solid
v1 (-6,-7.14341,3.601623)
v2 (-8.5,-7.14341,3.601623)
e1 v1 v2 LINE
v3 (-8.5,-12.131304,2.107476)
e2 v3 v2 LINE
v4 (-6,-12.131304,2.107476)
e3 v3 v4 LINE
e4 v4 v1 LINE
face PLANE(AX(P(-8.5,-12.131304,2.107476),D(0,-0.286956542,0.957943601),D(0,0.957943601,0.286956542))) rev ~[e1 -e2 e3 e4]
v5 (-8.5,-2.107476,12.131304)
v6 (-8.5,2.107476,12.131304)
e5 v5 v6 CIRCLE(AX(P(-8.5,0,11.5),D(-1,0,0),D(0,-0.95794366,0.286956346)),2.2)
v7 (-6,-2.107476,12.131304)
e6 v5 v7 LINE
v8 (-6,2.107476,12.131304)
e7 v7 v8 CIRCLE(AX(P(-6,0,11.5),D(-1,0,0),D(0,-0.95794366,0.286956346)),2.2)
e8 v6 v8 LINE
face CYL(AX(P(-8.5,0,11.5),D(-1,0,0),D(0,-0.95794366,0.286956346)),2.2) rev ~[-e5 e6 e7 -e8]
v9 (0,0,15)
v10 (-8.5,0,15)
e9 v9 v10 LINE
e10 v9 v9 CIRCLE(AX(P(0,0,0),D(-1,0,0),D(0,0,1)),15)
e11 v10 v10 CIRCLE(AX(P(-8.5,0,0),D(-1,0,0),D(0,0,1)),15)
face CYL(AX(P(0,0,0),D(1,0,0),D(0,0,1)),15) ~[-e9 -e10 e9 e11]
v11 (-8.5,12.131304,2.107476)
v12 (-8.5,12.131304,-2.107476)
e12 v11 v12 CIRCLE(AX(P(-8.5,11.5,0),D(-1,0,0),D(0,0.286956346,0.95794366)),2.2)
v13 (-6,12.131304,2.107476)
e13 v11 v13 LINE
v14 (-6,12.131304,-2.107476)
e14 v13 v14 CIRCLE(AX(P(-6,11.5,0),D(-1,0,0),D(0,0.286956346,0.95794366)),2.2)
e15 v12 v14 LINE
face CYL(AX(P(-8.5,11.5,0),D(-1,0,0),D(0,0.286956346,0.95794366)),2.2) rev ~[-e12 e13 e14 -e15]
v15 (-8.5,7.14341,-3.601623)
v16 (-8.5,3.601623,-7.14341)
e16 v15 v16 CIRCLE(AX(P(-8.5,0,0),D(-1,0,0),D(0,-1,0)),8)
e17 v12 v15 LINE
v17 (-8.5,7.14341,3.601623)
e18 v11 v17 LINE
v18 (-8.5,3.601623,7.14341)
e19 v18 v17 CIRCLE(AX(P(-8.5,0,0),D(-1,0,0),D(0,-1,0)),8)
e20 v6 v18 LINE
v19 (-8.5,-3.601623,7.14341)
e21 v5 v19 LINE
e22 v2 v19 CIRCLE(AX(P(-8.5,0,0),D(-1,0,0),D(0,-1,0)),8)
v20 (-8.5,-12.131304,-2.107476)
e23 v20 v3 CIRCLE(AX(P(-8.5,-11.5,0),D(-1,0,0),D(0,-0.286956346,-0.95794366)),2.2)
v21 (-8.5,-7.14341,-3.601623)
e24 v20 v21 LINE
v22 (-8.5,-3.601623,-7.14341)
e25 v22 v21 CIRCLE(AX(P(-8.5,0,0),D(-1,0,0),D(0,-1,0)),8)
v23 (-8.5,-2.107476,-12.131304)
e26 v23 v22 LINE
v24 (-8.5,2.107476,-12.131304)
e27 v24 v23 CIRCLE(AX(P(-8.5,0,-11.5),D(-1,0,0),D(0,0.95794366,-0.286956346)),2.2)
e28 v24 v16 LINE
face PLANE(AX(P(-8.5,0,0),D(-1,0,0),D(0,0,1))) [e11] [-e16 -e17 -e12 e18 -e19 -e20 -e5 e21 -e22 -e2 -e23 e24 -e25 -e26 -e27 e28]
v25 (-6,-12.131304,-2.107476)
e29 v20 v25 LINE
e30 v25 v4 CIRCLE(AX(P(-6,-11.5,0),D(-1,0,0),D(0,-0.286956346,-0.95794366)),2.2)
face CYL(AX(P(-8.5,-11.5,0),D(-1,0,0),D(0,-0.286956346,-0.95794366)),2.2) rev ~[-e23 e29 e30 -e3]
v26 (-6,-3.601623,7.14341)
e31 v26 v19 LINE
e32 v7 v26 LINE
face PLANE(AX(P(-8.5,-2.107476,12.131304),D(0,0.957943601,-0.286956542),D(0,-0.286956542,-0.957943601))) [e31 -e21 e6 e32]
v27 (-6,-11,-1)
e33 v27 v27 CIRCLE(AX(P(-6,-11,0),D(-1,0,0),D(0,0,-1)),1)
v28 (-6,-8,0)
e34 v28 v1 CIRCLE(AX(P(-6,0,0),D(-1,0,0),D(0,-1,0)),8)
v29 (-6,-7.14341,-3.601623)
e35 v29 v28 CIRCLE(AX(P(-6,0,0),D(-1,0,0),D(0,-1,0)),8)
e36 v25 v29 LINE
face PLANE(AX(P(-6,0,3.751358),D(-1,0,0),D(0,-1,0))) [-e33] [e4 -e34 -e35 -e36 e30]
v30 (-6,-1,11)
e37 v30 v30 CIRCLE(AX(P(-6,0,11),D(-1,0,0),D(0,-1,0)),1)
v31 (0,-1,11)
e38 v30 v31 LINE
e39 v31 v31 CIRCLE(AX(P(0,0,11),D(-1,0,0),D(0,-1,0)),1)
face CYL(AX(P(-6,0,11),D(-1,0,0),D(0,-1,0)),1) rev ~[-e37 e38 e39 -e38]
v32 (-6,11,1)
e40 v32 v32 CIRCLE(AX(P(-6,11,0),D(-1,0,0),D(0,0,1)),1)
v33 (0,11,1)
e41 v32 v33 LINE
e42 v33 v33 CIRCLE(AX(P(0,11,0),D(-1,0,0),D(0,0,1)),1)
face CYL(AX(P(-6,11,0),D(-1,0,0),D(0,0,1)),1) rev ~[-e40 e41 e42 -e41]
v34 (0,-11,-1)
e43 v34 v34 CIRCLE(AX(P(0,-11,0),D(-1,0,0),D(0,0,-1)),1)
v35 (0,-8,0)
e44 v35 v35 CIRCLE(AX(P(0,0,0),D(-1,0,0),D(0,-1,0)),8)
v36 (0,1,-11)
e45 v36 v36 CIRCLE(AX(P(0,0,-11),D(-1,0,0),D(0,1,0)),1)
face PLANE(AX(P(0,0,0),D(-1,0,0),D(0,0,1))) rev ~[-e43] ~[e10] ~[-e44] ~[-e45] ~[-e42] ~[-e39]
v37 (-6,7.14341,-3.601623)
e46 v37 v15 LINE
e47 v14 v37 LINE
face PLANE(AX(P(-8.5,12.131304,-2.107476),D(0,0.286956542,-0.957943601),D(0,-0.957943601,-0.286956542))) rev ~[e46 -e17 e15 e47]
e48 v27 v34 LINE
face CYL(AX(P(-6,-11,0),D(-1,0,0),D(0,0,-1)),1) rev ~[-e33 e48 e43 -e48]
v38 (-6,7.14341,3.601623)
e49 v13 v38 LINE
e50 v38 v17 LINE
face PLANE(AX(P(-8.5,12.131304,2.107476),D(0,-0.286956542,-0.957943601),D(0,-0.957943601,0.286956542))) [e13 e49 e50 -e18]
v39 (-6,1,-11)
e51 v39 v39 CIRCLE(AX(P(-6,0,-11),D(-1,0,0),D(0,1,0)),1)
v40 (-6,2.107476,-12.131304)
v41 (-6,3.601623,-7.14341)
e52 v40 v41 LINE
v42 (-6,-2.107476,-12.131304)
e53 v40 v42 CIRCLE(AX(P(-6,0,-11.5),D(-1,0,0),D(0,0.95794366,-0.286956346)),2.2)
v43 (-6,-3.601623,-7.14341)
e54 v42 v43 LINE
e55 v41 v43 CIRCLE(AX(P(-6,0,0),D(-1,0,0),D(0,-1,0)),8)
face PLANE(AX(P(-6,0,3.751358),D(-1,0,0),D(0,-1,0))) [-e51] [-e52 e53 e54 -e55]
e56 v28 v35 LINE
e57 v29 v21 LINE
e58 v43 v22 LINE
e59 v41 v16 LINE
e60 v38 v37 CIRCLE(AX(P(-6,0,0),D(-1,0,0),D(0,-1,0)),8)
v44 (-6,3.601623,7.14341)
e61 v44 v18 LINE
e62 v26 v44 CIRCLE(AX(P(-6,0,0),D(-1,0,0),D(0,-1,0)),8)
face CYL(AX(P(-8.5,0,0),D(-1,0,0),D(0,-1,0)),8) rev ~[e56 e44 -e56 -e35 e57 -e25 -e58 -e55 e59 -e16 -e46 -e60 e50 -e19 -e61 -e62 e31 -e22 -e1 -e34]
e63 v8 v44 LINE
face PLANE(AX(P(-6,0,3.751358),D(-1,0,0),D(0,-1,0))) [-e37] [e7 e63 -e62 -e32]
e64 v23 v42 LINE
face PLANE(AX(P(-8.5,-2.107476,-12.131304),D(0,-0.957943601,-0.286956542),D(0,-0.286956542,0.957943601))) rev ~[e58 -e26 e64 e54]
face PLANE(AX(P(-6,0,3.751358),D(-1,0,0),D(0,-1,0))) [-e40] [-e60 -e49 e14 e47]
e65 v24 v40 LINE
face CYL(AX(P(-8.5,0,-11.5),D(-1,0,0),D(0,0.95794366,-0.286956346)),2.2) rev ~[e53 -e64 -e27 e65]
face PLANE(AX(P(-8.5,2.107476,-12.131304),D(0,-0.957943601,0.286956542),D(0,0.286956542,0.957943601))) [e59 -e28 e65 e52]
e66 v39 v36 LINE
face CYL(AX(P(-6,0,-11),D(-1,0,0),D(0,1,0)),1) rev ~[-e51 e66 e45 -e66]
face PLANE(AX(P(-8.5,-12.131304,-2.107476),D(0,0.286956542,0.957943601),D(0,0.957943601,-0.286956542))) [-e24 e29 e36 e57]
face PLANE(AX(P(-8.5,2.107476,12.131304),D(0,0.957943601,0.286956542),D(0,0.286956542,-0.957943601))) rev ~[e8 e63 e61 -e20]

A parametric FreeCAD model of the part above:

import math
import FreeCAD as App
import Part
import Sketcher
from FreeCAD import Vector
Q = App.Units.Quantity

doc = App.newDocument("Part")
body = doc.addObject("PartDesign::Body", "Body")

# Sketch on YZ plane
sketch1 = body.newObject("Sketcher::SketchObject", "Sketch")
sketch1.AttachmentSupport = (doc.getObject("YZ_Plane"), [""])
sketch1.MapMode = "FlatFace"
sketch1.addGeometry(Part.Circle(Vector(0, 0, 0), Vector(0, 0, 1), 6.5), False)
sketch1.addGeometry(Part.Circle(Vector(0, 0, 0), Vector(0, 0, 1), 2.5), False)
sketch1.addConstraint(Sketcher.Constraint("Coincident", 0, 3, -1, 1))
sketch1.addConstraint(Sketcher.Constraint("Coincident", 1, 3, -1, 1))
sketch1.addConstraint(Sketcher.Constraint("Diameter", 0, Q("13 mm")))
sketch1.addConstraint(Sketcher.Constraint("Diameter", 1, Q("5 mm")))
pad1 = body.newObject("PartDesign::Pad", "Pad")
pad1.Profile = sketch1
pad1.Length = 6

# Sketch on YZ plane
sketch2 = body.newObject("Sketcher::SketchObject", "Sketch001")
sketch2.AttachmentSupport = (doc.getObject("YZ_Plane"), [""])
sketch2.MapMode = "FlatFace"
sketch2.addGeometry(Part.Circle(Vector(0, 0, 0), Vector(0, 0, 1), 5), False)
sketch2.addGeometry(Part.Circle(Vector(0, 0, 0), Vector(0, 0, 1), 2.522437), False)
sketch2.addConstraint(Sketcher.Constraint("Coincident", 0, 3, -1, 1))
sketch2.addConstraint(Sketcher.Constraint("Coincident", 1, 3, -1, 1))
sketch2.addConstraint(Sketcher.Constraint("Diameter", 0, Q("10 mm")))
sketch2.addConstraint(Sketcher.Constraint("Diameter", 1, Q("5.044874 mm")))
pad2 = body.newObject("PartDesign::Pad", "Pad001")
pad2.Profile = sketch2
pad2.Length = 7
pad2.Reversed = True

# Sketch on YZ plane
sketch3 = body.newObject("Sketcher::SketchObject", "Sketch002")
sketch3.AttachmentSupport = (doc.getObject("YZ_Plane"), [""])
sketch3.MapMode = "FlatFace"
sketch3.AttachmentOffset = App.Placement(Vector(0, 0, -7), App.Rotation())
sketch3.addGeometry(Part.Circle(Vector(0, 0, 0), Vector(0, 0, 1), 6.5), False)
sketch3.addGeometry(Part.Circle(Vector(0, 0, 0), Vector(0, 0, 1), 2.522437), False)
sketch3.addConstraint(Sketcher.Constraint("Coincident", 0, 3, -1, 1))
sketch3.addConstraint(Sketcher.Constraint("Coincident", 1, 3, -1, 1))
sketch3.addConstraint(Sketcher.Constraint("Diameter", 0, Q("13 mm")))
sketch3.addConstraint(Sketcher.Constraint("Diameter", 1, Q("5.044874 mm")))
pad3 = body.newObject("PartDesign::Pad", "Pad002")
pad3.Profile = sketch3
pad3.Length = 1
pad3.Reversed = True

# Sketch on XZ plane
sketch4 = body.newObject("Sketcher::SketchObject", "Sketch003")
sketch4.AttachmentSupport = (doc.getObject("XZ_Plane"), [""])
sketch4.MapMode = "FlatFace"
sketch4.addGeometry(Part.Circle(Vector(3, 0, 0), Vector(0, 0, 1), 1), False)
sketch4.addConstraint(Sketcher.Constraint("PointOnObject", 0, 3, -1))
sketch4.addConstraint(Sketcher.Constraint("Diameter", 0, Q("2 mm")))
sketch4.addConstraint(Sketcher.Constraint("DistanceX", -1, 1, 0, 3, Q("3 mm")))
pad4 = body.newObject("PartDesign::Pad", "Pad003")
pad4.Profile = sketch4
pad4.Length = 7
body2 = doc.addObject("PartDesign::Body", "Body001")
doc.recompute()

body.Placement = App.Placement(Vector(0, 0, 0), App.Rotation(Vector(1, 0, 0), 135))
boolean = body2.newObject("PartDesign::Boolean", "Boolean")
boolean.Type = "Fuse"
boolean.addObjects([body])
body3 = doc.addObject("PartDesign::Body", "Body002")
doc.recompute()

body2.Placement = App.Placement(Vector(0, 0, 0), App.Rotation(Vector(0, 0, 1), 180))
boolean2 = body3.newObject("PartDesign::Boolean", "Boolean001")
boolean2.Type = "Fuse"
boolean2.addObjects([body2])
body4 = doc.addObject("PartDesign::Body", "Body003")

# Sketch on XY plane
sketch5 = body4.newObject("Sketcher::SketchObject", "Sketch004")
sketch5.AttachmentSupport = (doc.getObject("XY_Plane003"), [""])
sketch5.MapMode = "FlatFace"
sketch5.addGeometry(Part.Circle(Vector(0, 0, 0), Vector(0, 0, 1), 15), False)
sketch5.addConstraint(Sketcher.Constraint("Coincident", 0, 3, -1, 1))
sketch5.addConstraint(Sketcher.Constraint("Diameter", 0, Q("30 mm")))
pad5 = body4.newObject("PartDesign::Pad", "Pad004")
pad5.Profile = sketch5
pad5.Length = 8.5

# Sketch on XY plane
sketch6 = body4.newObject("Sketcher::SketchObject", "Sketch005")
sketch6.AttachmentSupport = (doc.getObject("XY_Plane003"), [""])
sketch6.MapMode = "FlatFace"
sketch6.AttachmentOffset = App.Placement(Vector(0, 0, 8.5), App.Rotation())
sketch6.addGeometry(Part.ArcOfCircle(Part.Circle(Vector(0, 0, 0), Vector(0, 0, 1), 5.5), math.radians(163.324166), math.radians(376.675834)), False)
sketch6.addGeometry(Part.LineSegment(Vector(5.26869, 1.578261, 0), Vector(2.107476, 12.131304, 0)), False)
sketch6.addGeometry(Part.ArcOfCircle(Part.Circle(Vector(0, 11.5, 0), Vector(0, 0, 1), 2.2), math.radians(16.675824), math.radians(163.324176)), False)
sketch6.addGeometry(Part.LineSegment(Vector(-2.107476, 12.131304, 0), Vector(-5.26869, 1.578261, 0)), False)
sketch6.addConstraint(Sketcher.Constraint("Tangent", 0, 2, 1, 1))
sketch6.addConstraint(Sketcher.Constraint("Tangent", 1, 2, 2, 1))
sketch6.addConstraint(Sketcher.Constraint("Tangent", 2, 2, 3, 1))
sketch6.addConstraint(Sketcher.Constraint("Tangent", 3, 2, 0, 1))
sketch6.addConstraint(Sketcher.Constraint("Coincident", 0, 3, -1, 1))
sketch6.addConstraint(Sketcher.Constraint("PointOnObject", 2, 3, -2))
sketch6.addConstraint(Sketcher.Constraint("Radius", 0, Q("5.5 mm")))
sketch6.addConstraint(Sketcher.Constraint("Radius", 2, Q("2.2 mm")))
sketch6.addConstraint(Sketcher.Constraint("DistanceY", -1, 1, 2, 3, Q("11.5 mm")))
pocket1 = body4.newObject("PartDesign::Pocket", "Pocket")
pocket1.Profile = sketch6
pocket1.Length = 2.5
doc.recompute()

polarpattern = body4.newObject("PartDesign::PolarPattern", "PolarPattern")
polarpattern.Originals = [pocket1]
polarpattern.Axis = (doc.getObject("Z_Axis003"), [""])
polarpattern.Angle = 360
polarpattern.Occurrences = 4
body4.Tip = polarpattern

# Sketch on XY plane
sketch7 = body4.newObject("Sketcher::SketchObject", "Sketch006")
sketch7.AttachmentSupport = (doc.getObject("XY_Plane003"), [""])
sketch7.MapMode = "FlatFace"
sketch7.AttachmentOffset = App.Placement(Vector(0, 0, 6), App.Rotation())
sketch7.addGeometry(Part.Circle(Vector(0, 11, 0), Vector(0, 0, 1), 1), False)
sketch7.addConstraint(Sketcher.Constraint("PointOnObject", 0, 3, -2))
sketch7.addConstraint(Sketcher.Constraint("Diameter", 0, Q("2 mm")))
sketch7.addConstraint(Sketcher.Constraint("DistanceY", -1, 1, 0, 3, Q("11 mm")))
pocket2 = body4.newObject("PartDesign::Pocket", "Pocket001")
pocket2.Profile = sketch7
pocket2.Length = 25
doc.recompute()

polarpattern2 = body4.newObject("PartDesign::PolarPattern", "PolarPattern001")
polarpattern2.Originals = [pocket2]
polarpattern2.Axis = (doc.getObject("Z_Axis003"), [""])
polarpattern2.Angle = 360
polarpattern2.Occurrences = 4
body4.Tip = polarpattern2

# Sketch on XY plane
sketch8 = body4.newObject("Sketcher::SketchObject", "Sketch007")
sketch8.AttachmentSupport = (doc.getObject("XY_Plane003"), [""])
sketch8.MapMode = "FlatFace"
sketch8.AttachmentOffset = App.Placement(Vector(0, 0, 6), App.Rotation())
sketch8.addGeometry(Part.Circle(Vector(0, 0, 0), Vector(0, 0, 1), 4), False)
sketch8.addConstraint(Sketcher.Constraint("Coincident", 0, 3, -1, 1))
sketch8.addConstraint(Sketcher.Constraint("Diameter", 0, Q("8 mm")))
pocket3 = body4.newObject("PartDesign::Pocket", "Pocket002")
pocket3.Profile = sketch8
pocket3.Type = "ThroughAll"
body5 = doc.addObject("PartDesign::Body", "Body004")
doc.recompute()

body4.Placement = App.Placement(Vector(0, 0, 0), App.Rotation(Vector(0, -1, 0), 90))
boolean3 = body5.newObject("PartDesign::Boolean", "Boolean002")
boolean3.Type = "Fuse"
boolean3.addObjects([body4])
doc.recompute()

boolean4 = body5.newObject("PartDesign::Boolean", "Boolean003")
boolean4.Type = "Cut"
boolean4.addObjects([body3])

# Sketch on YZ plane
sketch9 = body5.newObject("Sketcher::SketchObject", "Sketch008")
sketch9.AttachmentSupport = (doc.getObject("YZ_Plane004"), [""])
sketch9.MapMode = "FlatFace"
sketch9.AttachmentOffset = App.Placement(Vector(0, 0, -8.5), App.Rotation())
sketch9.addGeometry(Part.Circle(Vector(0, 0, 0), Vector(0, 0, 1), 8), False)
sketch9.addConstraint(Sketcher.Constraint("Coincident", 0, 3, -1, 1))
sketch9.addConstraint(Sketcher.Constraint("Diameter", 0, Q("16 mm")))
pocket4 = body5.newObject("PartDesign::Pocket", "Pocket003")
pocket4.Profile = sketch9
pocket4.Type = "ThroughAll"
pocket4.Reversed = True

doc.recompute()
